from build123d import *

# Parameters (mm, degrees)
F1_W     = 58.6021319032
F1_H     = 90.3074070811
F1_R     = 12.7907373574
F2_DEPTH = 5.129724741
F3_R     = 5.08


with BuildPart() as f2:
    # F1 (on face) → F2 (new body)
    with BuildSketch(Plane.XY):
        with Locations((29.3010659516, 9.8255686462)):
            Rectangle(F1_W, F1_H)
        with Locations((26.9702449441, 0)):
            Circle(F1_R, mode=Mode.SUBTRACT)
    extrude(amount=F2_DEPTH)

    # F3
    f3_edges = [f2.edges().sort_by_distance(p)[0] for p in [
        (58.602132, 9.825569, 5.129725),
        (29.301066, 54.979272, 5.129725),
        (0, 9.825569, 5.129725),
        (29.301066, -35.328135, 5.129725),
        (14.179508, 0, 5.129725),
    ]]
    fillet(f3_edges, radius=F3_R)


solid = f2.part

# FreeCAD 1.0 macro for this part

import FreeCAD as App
import Part
import Sketcher

V = App.Vector
Q = App.Units.Quantity


def edges_at(feature, points):
    """Names of the edges that pass closest to the given points."""
    edges = feature.Shape.Edges
    near = lambda p: min(range(len(edges)), key=lambda i: edges[i].distToShape(Part.Vertex(*p))[0])
    return sorted({f"Edge{near(p) + 1}" for p in points})

doc = App.newDocument("Part")
body = doc.addObject("PartDesign::Body", "Body")

# Sketch on XY plane
sketch1 = body.newObject("Sketcher::SketchObject", "Sketch")
sketch1.AttachmentSupport = (doc.getObject("XY_Plane"), [""])
sketch1.MapMode = "FlatFace"
sketch1.addGeometry(Part.LineSegment(V(0, 55, 0), V(0, -35, 0)), False)
sketch1.addGeometry(Part.LineSegment(V(0, -35, 0), V(59, -35, 0)), False)
sketch1.addGeometry(Part.LineSegment(V(59, -35, 0), V(59, 55, 0)), False)
sketch1.addGeometry(Part.LineSegment(V(59, 55, 0), V(0, 55, 0)), False)
sketch1.addGeometry(Part.Circle(V(27, 0, 0), V(0, 0, 1), 13), False)
sketch1.addConstraint(Sketcher.Constraint("Coincident", 0, 2, 1, 1))
sketch1.addConstraint(Sketcher.Constraint("Coincident", 1, 2, 2, 1))
sketch1.addConstraint(Sketcher.Constraint("Coincident", 2, 2, 3, 1))
sketch1.addConstraint(Sketcher.Constraint("Coincident", 3, 2, 0, 1))
sketch1.addConstraint(Sketcher.Constraint("Vertical", 0))
sketch1.addConstraint(Sketcher.Constraint("Horizontal", 1))
sketch1.addConstraint(Sketcher.Constraint("Vertical", 2))
sketch1.addConstraint(Sketcher.Constraint("Horizontal", 3))
sketch1.addConstraint(Sketcher.Constraint("PointOnObject", 4, 3, -1))
sketch1.addConstraint(Sketcher.Constraint("PointOnObject", 0, 2, -2))
sketch1.addConstraint(Sketcher.Constraint("Diameter", 4, Q("25.581475 mm")))
sketch1.addConstraint(Sketcher.Constraint("DistanceX", 1, 1, 1, 2, Q("58.602132 mm")))
sketch1.addConstraint(Sketcher.Constraint("DistanceY", 0, 2, 0, 1, Q("90.307407 mm")))
sketch1.addConstraint(Sketcher.Constraint("DistanceX", -1, 1, 4, 3, Q("26.970245 mm")))
sketch1.addConstraint(Sketcher.Constraint("DistanceY", 0, 2, -1, 1, Q("35.328135 mm")))
pad1 = body.newObject("PartDesign::Pad", "Pad")
pad1.Profile = sketch1
pad1.Length = 5.129725
doc.recompute()

fillet = body.newObject("PartDesign::Fillet", "Fillet")
fillet.Base = (pad1, edges_at(pad1, [
    (58.602, 9.826, 5.13),
    (29.301, 54.979, 5.13),
    (0, 9.826, 5.13),
    (29.301, -35.328, 5.13),
    (14.18, 0, 5.13),
]))
fillet.Radius = Q("0.2 in")

doc.recompute()
